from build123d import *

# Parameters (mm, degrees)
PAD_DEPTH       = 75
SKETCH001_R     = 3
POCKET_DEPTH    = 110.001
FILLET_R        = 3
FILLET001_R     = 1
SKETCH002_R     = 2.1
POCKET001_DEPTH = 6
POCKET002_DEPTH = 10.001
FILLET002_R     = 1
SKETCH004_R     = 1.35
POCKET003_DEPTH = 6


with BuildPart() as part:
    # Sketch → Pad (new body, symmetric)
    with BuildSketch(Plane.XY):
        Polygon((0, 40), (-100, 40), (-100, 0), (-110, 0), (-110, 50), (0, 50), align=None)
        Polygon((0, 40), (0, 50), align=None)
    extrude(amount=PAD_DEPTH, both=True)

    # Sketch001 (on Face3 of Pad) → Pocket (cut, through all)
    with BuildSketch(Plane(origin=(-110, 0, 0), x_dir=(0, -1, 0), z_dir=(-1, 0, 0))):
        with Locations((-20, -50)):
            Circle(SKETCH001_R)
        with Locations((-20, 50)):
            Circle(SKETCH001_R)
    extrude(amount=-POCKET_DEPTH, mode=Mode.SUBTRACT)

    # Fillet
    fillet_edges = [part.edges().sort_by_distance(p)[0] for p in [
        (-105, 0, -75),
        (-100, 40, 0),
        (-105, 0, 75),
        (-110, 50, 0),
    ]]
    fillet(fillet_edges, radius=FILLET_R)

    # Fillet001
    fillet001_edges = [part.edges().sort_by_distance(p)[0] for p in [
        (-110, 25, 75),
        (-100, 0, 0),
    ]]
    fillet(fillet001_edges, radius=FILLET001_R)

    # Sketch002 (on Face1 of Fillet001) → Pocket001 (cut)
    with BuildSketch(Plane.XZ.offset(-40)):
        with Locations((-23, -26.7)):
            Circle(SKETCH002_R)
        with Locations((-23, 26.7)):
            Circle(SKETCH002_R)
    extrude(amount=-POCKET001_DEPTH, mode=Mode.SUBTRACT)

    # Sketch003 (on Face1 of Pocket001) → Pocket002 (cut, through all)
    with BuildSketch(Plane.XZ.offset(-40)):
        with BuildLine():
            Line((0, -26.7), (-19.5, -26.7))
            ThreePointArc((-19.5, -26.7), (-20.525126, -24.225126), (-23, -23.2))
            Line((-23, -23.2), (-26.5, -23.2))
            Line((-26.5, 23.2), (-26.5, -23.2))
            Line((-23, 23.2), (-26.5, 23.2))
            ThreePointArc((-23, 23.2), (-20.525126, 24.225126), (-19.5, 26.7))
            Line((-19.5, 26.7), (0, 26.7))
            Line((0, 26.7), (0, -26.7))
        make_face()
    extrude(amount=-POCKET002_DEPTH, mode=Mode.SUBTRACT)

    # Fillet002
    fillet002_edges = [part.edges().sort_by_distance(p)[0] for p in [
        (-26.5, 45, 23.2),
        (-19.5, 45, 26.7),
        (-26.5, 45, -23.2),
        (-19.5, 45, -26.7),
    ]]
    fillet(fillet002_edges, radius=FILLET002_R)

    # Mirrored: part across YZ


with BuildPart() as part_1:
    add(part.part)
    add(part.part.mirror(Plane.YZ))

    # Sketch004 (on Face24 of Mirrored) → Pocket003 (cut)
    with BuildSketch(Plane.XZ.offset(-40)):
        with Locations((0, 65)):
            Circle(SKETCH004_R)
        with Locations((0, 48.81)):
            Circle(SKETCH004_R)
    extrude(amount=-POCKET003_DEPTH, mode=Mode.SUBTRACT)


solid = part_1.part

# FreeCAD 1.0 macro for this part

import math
import FreeCAD as App
import Part
import Sketcher
Q = App.Units.Quantity


def edges_at(feature, points):
    """Names of the edges that pass closest to the given points."""
    edges = feature.Shape.Edges
    near = lambda p: min(range(len(edges)), key=lambda i: edges[i].distToShape(Part.Vertex(*p))[0])
    return sorted({f"Edge{near(p) + 1}" for p in points})

doc = App.newDocument("Part")
params = doc.addObject("Spreadsheet::Sheet", "Params")
for row, (alias, value) in enumerate([
    ("sketch1_width", "100 mm"),
    ("sketch1_width2", "110 mm"),
    ("sketch1_height", "50 mm"),
    ("pad1_length", "150 mm"),
    ("sketch2_diameter", "6 mm"),
    ("fillet_radius", "3 mm"),
    ("fillet2_radius", "1 mm"),
    ("sketch3_diameter", "4.2 mm"),
    ("pocket2_length", "6 mm"),
    ("sketch4_radius", "3.499999 mm"),
    ("sketch4_width", "19.5 mm"),
    ("sketch4_width2", "3.5 mm"),
    ("sketch4_height", "53.4 mm"),
    ("fillet3_radius", "1 mm"),
    ("sketch5_diameter", "2.7 mm"),
    ("pocket4_length", "6 mm"),
], start=1):
    params.set(f"A{row}", alias)
    params.set(f"B{row}", "=" + value)
    params.setAlias(f"B{row}", alias)

body = doc.addObject("PartDesign::Body", "Body")

sketch1 = body.newObject("Sketcher::SketchObject", "Sketch")
sketch1.AttachmentSupport = (doc.getObject("XY_Plane"), [""])
sketch1.MapMode = "FlatFace"
sketch1.addGeometry([
    Part.LineSegment(App.Vector(-100, 40, 0), App.Vector(0, 40, 0)),
    Part.LineSegment(App.Vector(0, 40, 0), App.Vector(0, 50, 0)),
    Part.LineSegment(App.Vector(0, 50, 0), App.Vector(-110, 50, 0)),
    Part.LineSegment(App.Vector(-110, 50, 0), App.Vector(-110, 0, 0)),
    Part.LineSegment(App.Vector(-110, 0, 0), App.Vector(-100, 0, 0)),
    Part.LineSegment(App.Vector(-100, 0, 0), App.Vector(-100, 40, 0)),
], False)
sketch1.addConstraint([
    Sketcher.Constraint("Coincident", 0, 2, 1, 1),
    Sketcher.Constraint("Coincident", 1, 2, 2, 1),
    Sketcher.Constraint("Coincident", 2, 2, 3, 1),
    Sketcher.Constraint("Coincident", 3, 2, 4, 1),
    Sketcher.Constraint("Coincident", 4, 2, 5, 1),
    Sketcher.Constraint("Coincident", 5, 2, 0, 1),
    Sketcher.Constraint("Horizontal", 0),
    Sketcher.Constraint("Vertical", 1),
    Sketcher.Constraint("Horizontal", 2),
    Sketcher.Constraint("Vertical", 3),
    Sketcher.Constraint("Horizontal", 4),
    Sketcher.Constraint("Vertical", 5),
    Sketcher.Constraint("PointOnObject", 0, 2, -2),
    Sketcher.Constraint("PointOnObject", 3, 2, -1),
    Sketcher.Constraint("Equal", 4, 1),
    Sketcher.Constraint("DistanceX", 0, 1, 0, 2, Q("100 mm")),
    Sketcher.Constraint("DistanceX", 2, 2, 2, 1, Q("110 mm")),
    Sketcher.Constraint("DistanceY", 3, 2, 3, 1, Q("50 mm")),
])
sketch1.setExpression("Constraints[15]", "Params.sketch1_width")
sketch1.setExpression("Constraints[16]", "Params.sketch1_width2")
sketch1.setExpression("Constraints[17]", "Params.sketch1_height")
pad1 = body.newObject("PartDesign::Pad", "Pad")
pad1.Profile = sketch1
pad1.setExpression("Length", "Params.pad1_length")
pad1.Midplane = True

sketch2 = body.newObject("Sketcher::SketchObject", "Sketch001")
sketch2.AttachmentSupport = (doc.getObject("YZ_Plane"), [""])
sketch2.MapMode = "FlatFace"
sketch2.AttachmentOffset = App.Placement(App.Vector(0, 0, -110), App.Rotation())
sketch2.addGeometry([
    Part.Circle(App.Vector(20, -50, 0), App.Vector(0, 0, 1), 3),
    Part.Circle(App.Vector(20, 50, 0), App.Vector(0, 0, 1), 3),
], False)
sketch2.addConstraint([
    Sketcher.Constraint("Equal", 0, 1),
    Sketcher.Constraint("Symmetric", 0, 3, 1, 3, -1),
    Sketcher.Constraint("Diameter", 0, Q("6 mm")),
    Sketcher.Constraint("DistanceX", -1, 1, 0, 3, Q("20 mm")),
    Sketcher.Constraint("DistanceY", 0, 3, -1, 1, Q("50 mm")),
])
sketch2.setExpression("Constraints[2]", "Params.sketch2_diameter")
pocket1 = body.newObject("PartDesign::Pocket", "Pocket")
pocket1.Profile = sketch2
pocket1.Type = "ThroughAll"
pocket1.Reversed = True
doc.recompute()

fillet = body.newObject("PartDesign::Fillet", "Fillet")
fillet.Base = (pocket1, edges_at(pocket1, [
    (-105, 0, -75),
    (-100, 40, 0),
    (-105, 0, 75),
    (-110, 50, 0),
]))
fillet.setExpression("Radius", "Params.fillet_radius")
doc.recompute()

fillet2 = body.newObject("PartDesign::Fillet", "Fillet001")
fillet2.Base = (fillet, edges_at(fillet, [(-110, 25, 75), (-100, 0, 0)]))
fillet2.setExpression("Radius", "Params.fillet2_radius")

sketch3 = body.newObject("Sketcher::SketchObject", "Sketch002")
sketch3.AttachmentSupport = (doc.getObject("XZ_Plane"), [""])
sketch3.MapMode = "FlatFace"
sketch3.AttachmentOffset = App.Placement(App.Vector(0, 0, -40), App.Rotation())
sketch3.addGeometry([
    Part.Circle(App.Vector(-23, -26.7, 0), App.Vector(0, 0, 1), 2.1),
    Part.Circle(App.Vector(-23, 26.7, 0), App.Vector(0, 0, 1), 2.1),
], False)
sketch3.addConstraint([
    Sketcher.Constraint("Equal", 0, 1),
    Sketcher.Constraint("Symmetric", 0, 3, 1, 3, -1),
    Sketcher.Constraint("Diameter", 0, Q("4.2 mm")),
    Sketcher.Constraint("DistanceX", 0, 3, -1, 1, Q("23 mm")),
    Sketcher.Constraint("DistanceY", 0, 3, -1, 1, Q("26.7 mm")),
])
sketch3.setExpression("Constraints[2]", "Params.sketch3_diameter")
pocket2 = body.newObject("PartDesign::Pocket", "Pocket001")
pocket2.Profile = sketch3
pocket2.setExpression("Length", "Params.pocket2_length")

sketch4 = body.newObject("Sketcher::SketchObject", "Sketch003")
sketch4.AttachmentSupport = (doc.getObject("XZ_Plane"), [""])
sketch4.MapMode = "FlatFace"
sketch4.AttachmentOffset = App.Placement(App.Vector(0, 0, -40), App.Rotation())
sketch4.addGeometry([
    Part.LineSegment(App.Vector(-19.5, -26.7, 0), App.Vector(0, -26.7, 0)),
    Part.LineSegment(App.Vector(0, -26.7, 0), App.Vector(0, 26.7, 0)),
    Part.LineSegment(App.Vector(0, 26.7, 0), App.Vector(-19.5, 26.7, 0)),
    Part.ArcOfCircle(Part.Circle(App.Vector(-23, 26.7, 0), App.Vector(0, 0, 1), 3.5), math.radians(-90), math.radians(0)),
    Part.LineSegment(App.Vector(-23, 23.2, 0), App.Vector(-26.5, 23.2, 0)),
    Part.LineSegment(App.Vector(-26.5, 23.2, 0), App.Vector(-26.5, -23.2, 0)),
    Part.LineSegment(App.Vector(-26.5, -23.2, 0), App.Vector(-23, -23.2, 0)),
    Part.ArcOfCircle(Part.Circle(App.Vector(-23, -26.7, 0), App.Vector(0, 0, 1), 3.5), math.radians(0), math.radians(90)),
], False)
sketch4.addConstraint([
    Sketcher.Constraint("Coincident", 0, 2, 1, 1),
    Sketcher.Constraint("Coincident", 1, 2, 2, 1),
    Sketcher.Constraint("Coincident", 2, 2, 3, 2),
    Sketcher.Constraint("Tangent", 3, 1, 4, 1),
    Sketcher.Constraint("Coincident", 4, 2, 5, 1),
    Sketcher.Constraint("Coincident", 5, 2, 6, 1),
    Sketcher.Constraint("Tangent", 6, 2, 7, 2),
    Sketcher.Constraint("Coincident", 7, 1, 0, 1),
    Sketcher.Constraint("Horizontal", 0),
    Sketcher.Constraint("Vertical", 1),
    Sketcher.Constraint("Horizontal", 2),
    Sketcher.Constraint("Horizontal", 4),
    Sketcher.Constraint("Vertical", 5),
    Sketcher.Constraint("Horizontal", 6),
    Sketcher.Constraint("Equal", 3, 7),
    Sketcher.Constraint("Symmetric", 0, 2, 1, 2, -1, 1),
    Sketcher.Constraint("Symmetric", 3, 3, 7, 3, -1),
    Sketcher.Constraint("Horizontal", 7, 3, 0, 2),
    Sketcher.Constraint("Radius", 3, Q("3.499999 mm")),
    Sketcher.Constraint("DistanceX", 0, 1, 0, 2, Q("19.5 mm")),
    Sketcher.Constraint("DistanceX", 4, 2, 4, 1, Q("3.5 mm")),
    Sketcher.Constraint("DistanceY", 1, 1, 1, 2, Q("53.4 mm")),
])
sketch4.setExpression("Constraints[18]", "Params.sketch4_radius")
sketch4.setExpression("Constraints[19]", "Params.sketch4_width")
sketch4.setExpression("Constraints[20]", "Params.sketch4_width2")
sketch4.setExpression("Constraints[21]", "Params.sketch4_height")
pocket3 = body.newObject("PartDesign::Pocket", "Pocket002")
pocket3.Profile = sketch4
pocket3.Type = "ThroughAll"
doc.recompute()

fillet3 = body.newObject("PartDesign::Fillet", "Fillet002")
fillet3.Base = (pocket3, edges_at(pocket3, [
    (-26.5, 45, 23.2),
    (-19.5, 45, 26.7),
    (-26.5, 45, -23.2),
    (-19.5, 45, -26.7),
]))
fillet3.setExpression("Radius", "Params.fillet3_radius")
body2 = doc.addObject("PartDesign::Body", "Body001")
doc.recompute()

body2.BaseFeature = body
doc.recompute()

mirroring = doc.addObject("Part::Mirroring", "Mirroring")
mirroring.Source = body
mirroring.Base = App.Vector(0, 0, 0)
mirroring.Normal = App.Vector(1, 0, 0)
body3 = doc.addObject("PartDesign::Body", "Body002")
body3.BaseFeature = mirroring
boolean = body2.newObject("PartDesign::Boolean", "Boolean")
boolean.Type = "Fuse"
boolean.addObjects([body3])
doc.recompute()

sketch5 = body2.newObject("Sketcher::SketchObject", "Sketch004")
sketch5.AttachmentSupport = (doc.getObject("XZ_Plane001"), [""])
sketch5.MapMode = "FlatFace"
sketch5.AttachmentOffset = App.Placement(App.Vector(0, 0, -40), App.Rotation())
sketch5.addGeometry([
    Part.Circle(App.Vector(0, 65, 0), App.Vector(0, 0, 1), 1.4),
    Part.Circle(App.Vector(0, 48.8, 0), App.Vector(0, 0, 1), 1.4),
], False)
sketch5.addConstraint([
    Sketcher.Constraint("Equal", 0, 1),
    Sketcher.Constraint("PointOnObject", 0, 3, -2),
    Sketcher.Constraint("PointOnObject", 1, 3, -2),
    Sketcher.Constraint("Diameter", 0, Q("2.7 mm")),
    Sketcher.Constraint("DistanceY", -1, 1, 0, 3, Q("65 mm")),
    Sketcher.Constraint("DistanceY", -1, 1, 1, 3, Q("48.81 mm")),
])
sketch5.setExpression("Constraints[3]", "Params.sketch5_diameter")
pocket4 = body2.newObject("PartDesign::Pocket", "Pocket003")
pocket4.Profile = sketch5
pocket4.setExpression("Length", "Params.pocket4_length")
mirroring.Visibility = False

doc.recompute()
